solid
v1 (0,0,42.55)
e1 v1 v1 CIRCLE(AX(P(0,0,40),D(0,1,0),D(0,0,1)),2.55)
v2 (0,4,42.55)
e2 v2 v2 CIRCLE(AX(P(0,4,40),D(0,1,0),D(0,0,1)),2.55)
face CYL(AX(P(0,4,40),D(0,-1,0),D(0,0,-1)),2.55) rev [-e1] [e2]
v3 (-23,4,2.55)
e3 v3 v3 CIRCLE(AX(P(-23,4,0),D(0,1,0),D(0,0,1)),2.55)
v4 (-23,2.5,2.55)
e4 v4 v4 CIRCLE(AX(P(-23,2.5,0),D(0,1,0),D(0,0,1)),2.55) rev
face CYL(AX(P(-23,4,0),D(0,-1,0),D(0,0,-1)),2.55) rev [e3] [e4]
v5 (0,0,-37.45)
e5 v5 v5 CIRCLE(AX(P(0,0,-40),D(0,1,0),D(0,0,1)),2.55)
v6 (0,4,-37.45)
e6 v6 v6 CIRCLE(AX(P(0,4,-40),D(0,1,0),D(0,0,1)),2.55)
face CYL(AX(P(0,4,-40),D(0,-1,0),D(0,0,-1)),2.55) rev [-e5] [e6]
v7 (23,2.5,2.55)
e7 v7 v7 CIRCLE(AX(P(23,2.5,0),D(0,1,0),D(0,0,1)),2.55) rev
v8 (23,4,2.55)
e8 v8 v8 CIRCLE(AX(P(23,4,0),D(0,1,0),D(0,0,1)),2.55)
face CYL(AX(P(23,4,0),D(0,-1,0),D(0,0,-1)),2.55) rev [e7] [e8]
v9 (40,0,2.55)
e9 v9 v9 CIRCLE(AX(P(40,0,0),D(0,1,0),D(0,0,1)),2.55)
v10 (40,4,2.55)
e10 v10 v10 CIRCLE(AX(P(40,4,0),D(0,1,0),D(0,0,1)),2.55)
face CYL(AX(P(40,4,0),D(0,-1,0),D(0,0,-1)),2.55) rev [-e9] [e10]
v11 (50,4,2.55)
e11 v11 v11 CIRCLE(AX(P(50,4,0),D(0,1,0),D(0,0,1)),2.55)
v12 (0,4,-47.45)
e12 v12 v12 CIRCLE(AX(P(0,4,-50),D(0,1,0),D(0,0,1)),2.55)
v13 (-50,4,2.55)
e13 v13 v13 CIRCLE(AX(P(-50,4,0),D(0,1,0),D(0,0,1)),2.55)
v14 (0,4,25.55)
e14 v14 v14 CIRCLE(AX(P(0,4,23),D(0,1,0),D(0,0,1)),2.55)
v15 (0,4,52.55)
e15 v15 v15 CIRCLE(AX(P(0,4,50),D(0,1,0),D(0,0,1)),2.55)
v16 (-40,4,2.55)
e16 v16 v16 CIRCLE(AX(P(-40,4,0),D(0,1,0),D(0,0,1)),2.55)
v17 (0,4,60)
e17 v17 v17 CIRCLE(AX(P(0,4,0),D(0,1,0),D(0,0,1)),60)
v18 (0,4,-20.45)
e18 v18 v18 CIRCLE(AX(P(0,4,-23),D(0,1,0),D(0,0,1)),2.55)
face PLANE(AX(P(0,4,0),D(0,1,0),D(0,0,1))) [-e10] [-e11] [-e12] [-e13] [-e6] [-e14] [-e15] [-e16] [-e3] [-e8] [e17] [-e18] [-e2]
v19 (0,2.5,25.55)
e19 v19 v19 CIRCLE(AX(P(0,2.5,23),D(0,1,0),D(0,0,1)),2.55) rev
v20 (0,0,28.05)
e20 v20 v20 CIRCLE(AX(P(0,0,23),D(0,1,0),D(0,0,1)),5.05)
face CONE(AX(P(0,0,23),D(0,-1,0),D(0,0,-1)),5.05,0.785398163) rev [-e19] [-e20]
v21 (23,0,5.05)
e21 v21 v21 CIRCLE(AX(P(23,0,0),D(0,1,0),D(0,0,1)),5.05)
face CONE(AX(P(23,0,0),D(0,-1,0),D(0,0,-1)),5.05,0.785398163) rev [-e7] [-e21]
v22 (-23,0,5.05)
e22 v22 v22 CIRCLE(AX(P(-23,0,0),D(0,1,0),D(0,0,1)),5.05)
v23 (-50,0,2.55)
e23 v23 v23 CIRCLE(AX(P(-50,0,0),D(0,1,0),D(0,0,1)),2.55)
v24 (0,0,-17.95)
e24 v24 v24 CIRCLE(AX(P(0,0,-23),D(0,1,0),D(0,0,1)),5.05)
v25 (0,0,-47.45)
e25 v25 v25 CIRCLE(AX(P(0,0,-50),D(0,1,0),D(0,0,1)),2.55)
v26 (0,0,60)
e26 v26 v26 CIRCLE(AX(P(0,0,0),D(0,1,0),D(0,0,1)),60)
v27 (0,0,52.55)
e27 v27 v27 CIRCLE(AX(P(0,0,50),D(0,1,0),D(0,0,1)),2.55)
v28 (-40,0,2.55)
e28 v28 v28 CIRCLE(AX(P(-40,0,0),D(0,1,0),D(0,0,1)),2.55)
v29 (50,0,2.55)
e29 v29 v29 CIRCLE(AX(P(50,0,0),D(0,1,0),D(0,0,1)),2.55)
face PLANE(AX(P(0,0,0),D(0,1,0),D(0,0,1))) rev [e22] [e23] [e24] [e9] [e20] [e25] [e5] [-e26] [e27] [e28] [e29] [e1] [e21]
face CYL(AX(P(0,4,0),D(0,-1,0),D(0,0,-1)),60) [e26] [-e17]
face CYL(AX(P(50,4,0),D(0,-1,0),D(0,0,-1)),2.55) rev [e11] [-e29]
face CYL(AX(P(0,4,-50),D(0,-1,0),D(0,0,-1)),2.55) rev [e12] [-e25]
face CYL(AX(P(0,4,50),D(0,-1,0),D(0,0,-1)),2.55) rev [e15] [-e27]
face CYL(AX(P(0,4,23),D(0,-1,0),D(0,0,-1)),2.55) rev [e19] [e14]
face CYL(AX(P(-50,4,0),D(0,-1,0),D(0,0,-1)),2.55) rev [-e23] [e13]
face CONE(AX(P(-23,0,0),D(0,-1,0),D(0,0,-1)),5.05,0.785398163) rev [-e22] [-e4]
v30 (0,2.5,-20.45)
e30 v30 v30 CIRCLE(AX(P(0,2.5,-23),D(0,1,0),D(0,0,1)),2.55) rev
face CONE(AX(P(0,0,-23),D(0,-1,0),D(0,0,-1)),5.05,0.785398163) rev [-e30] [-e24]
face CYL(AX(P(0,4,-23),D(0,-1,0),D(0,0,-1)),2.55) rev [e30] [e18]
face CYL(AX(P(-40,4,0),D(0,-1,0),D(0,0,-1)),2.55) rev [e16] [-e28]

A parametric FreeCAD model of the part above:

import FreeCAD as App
import Part
import Sketcher
from FreeCAD import Vector


def edges_at(feature, points):
    """Names of the edges that pass closest to the given points."""
    edges = feature.Shape.Edges
    near = lambda p: min(range(len(edges)), key=lambda i: edges[i].distToShape(Part.Vertex(*p))[0])
    return sorted({f"Edge{near(p) + 1}" for p in points})

doc = App.newDocument("Part")
params = doc.addObject("Spreadsheet::Sheet", "Params")
for row, (alias, value) in enumerate([
    ("sketch1_diameter", "120 mm"),
    ("sketch1_diameter2", "5.1 mm"),
    ("pad1_length", "4 mm"),
    ("chamfer_size", "2.5 mm"),
], start=1):
    params.set(f"A{row}", alias)
    params.set(f"B{row}", "=" + value)
    params.setAlias(f"B{row}", alias)

body = doc.addObject("PartDesign::Body", "Body")

sketch1 = doc.addObject("Sketcher::SketchObject", "Sketch")
body.addObject(sketch1)
sketch1.AttachmentSupport = (doc.XZ_Plane, [""])
sketch1.MapMode = "FlatFace"
sketch1.addGeometry(Part.Circle(Vector(0, 0, 0), Vector(0, 0, 1), 60), False)
sketch1.addGeometry(Part.Circle(Vector(0, 50, 0), Vector(0, 0, 1), 2.5), False)
sketch1.addGeometry(Part.Circle(Vector(0, 40, 0), Vector(0, 0, 1), 2.5), False)
sketch1.addGeometry(Part.Circle(Vector(-50, 0, 0), Vector(0, 0, 1), 2.5), False)
sketch1.addGeometry(Part.Circle(Vector(-40, 0, 0), Vector(0, 0, 1), 2.5), False)
sketch1.addGeometry(Part.Circle(Vector(0, 23, 0), Vector(0, 0, 1), 2.5), False)
sketch1.addGeometry(Part.Circle(Vector(-23, 0, 0), Vector(0, 0, 1), 2.5), False)
sketch1.addGeometry(Part.Circle(Vector(23, 0, 0), Vector(0, 0, 1), 2.5), False)
sketch1.addGeometry(Part.Circle(Vector(40, 0, 0), Vector(0, 0, 1), 2.5), False)
sketch1.addGeometry(Part.Circle(Vector(50, 0, 0), Vector(0, 0, 1), 2.5), False)
sketch1.addGeometry(Part.Circle(Vector(0, -23, 0), Vector(0, 0, 1), 2.5), False)
sketch1.addGeometry(Part.Circle(Vector(0, -40, 0), Vector(0, 0, 1), 2.5), False)
sketch1.addGeometry(Part.Circle(Vector(0, -50, 0), Vector(0, 0, 1), 2.5), False)
sketch1.addConstraint(Sketcher.Constraint("Coincident", 0, 3, -1, 1))
sketch1.addConstraint(Sketcher.Constraint("Equal", 1, 2))
sketch1.addConstraint(Sketcher.Constraint("Equal", 2, 3))
sketch1.addConstraint(Sketcher.Constraint("Equal", 3, 4))
sketch1.addConstraint(Sketcher.Constraint("Equal", 4, 5))
sketch1.addConstraint(Sketcher.Constraint("Equal", 5, 6))
sketch1.addConstraint(Sketcher.Constraint("Equal", 6, 7))
sketch1.addConstraint(Sketcher.Constraint("Equal", 7, 8))
sketch1.addConstraint(Sketcher.Constraint("Equal", 8, 9))
sketch1.addConstraint(Sketcher.Constraint("Equal", 9, 10))
sketch1.addConstraint(Sketcher.Constraint("Equal", 10, 11))
sketch1.addConstraint(Sketcher.Constraint("Equal", 11, 12))
sketch1.addConstraint(Sketcher.Constraint("Symmetric", 6, 3, 7, 3, -1, 1))
sketch1.addConstraint(Sketcher.Constraint("Symmetric", 4, 3, 8, 3, -1, 1))
sketch1.addConstraint(Sketcher.Constraint("Symmetric", 3, 3, 9, 3, -1, 1))
sketch1.addConstraint(Sketcher.Constraint("Symmetric", 5, 3, 10, 3, -1, 1))
sketch1.addConstraint(Sketcher.Constraint("Symmetric", 2, 3, 11, 3, -1, 1))
sketch1.addConstraint(Sketcher.Constraint("Symmetric", 1, 3, 12, 3, -1, 1))
sketch1.addConstraint(Sketcher.Constraint("PointOnObject", 1, 3, -2))
sketch1.addConstraint(Sketcher.Constraint("PointOnObject", 2, 3, -2))
sketch1.addConstraint(Sketcher.Constraint("PointOnObject", 3, 3, -1))
sketch1.addConstraint(Sketcher.Constraint("PointOnObject", 4, 3, -1))
sketch1.addConstraint(Sketcher.Constraint("PointOnObject", 5, 3, -2))
sketch1.addConstraint(Sketcher.Constraint("PointOnObject", 6, 3, -1))
sketch1.addConstraint(Sketcher.Constraint("Diameter", 0, 120.0))
sketch1.addConstraint(Sketcher.Constraint("Diameter", 1, 5.1))
sketch1.addConstraint(Sketcher.Constraint("DistanceY", -1, 1, 1, 3, 50.0))
sketch1.addConstraint(Sketcher.Constraint("DistanceY", -1, 1, 2, 3, 40.0))
sketch1.addConstraint(Sketcher.Constraint("DistanceX", 3, 3, -1, 1, 50.0))
sketch1.addConstraint(Sketcher.Constraint("DistanceX", 4, 3, -1, 1, 40.0))
sketch1.addConstraint(Sketcher.Constraint("DistanceY", -1, 1, 5, 3, 23.0))
sketch1.addConstraint(Sketcher.Constraint("DistanceX", 6, 3, -1, 1, 23.0))
sketch1.setExpression("Constraints[24]", "Params.sketch1_diameter")
sketch1.setExpression("Constraints[25]", "Params.sketch1_diameter2")
pad1 = doc.addObject("PartDesign::Pad", "Pad")
body.addObject(pad1)
pad1.Profile = sketch1
pad1.setExpression("Length", "Params.pad1_length")
pad1.Reversed = True
doc.recompute()

chamfer = doc.addObject("PartDesign::Chamfer", "Chamfer")
body.addObject(chamfer)
chamfer.Base = (pad1, edges_at(pad1, [
    (-2.55, 0, -23),
    (20.45, 0, 0),
    (-2.55, 0, 23),
    (-25.55, 0, 0),
]))
chamfer.setExpression("Size", "Params.chamfer_size")

doc.recompute()
